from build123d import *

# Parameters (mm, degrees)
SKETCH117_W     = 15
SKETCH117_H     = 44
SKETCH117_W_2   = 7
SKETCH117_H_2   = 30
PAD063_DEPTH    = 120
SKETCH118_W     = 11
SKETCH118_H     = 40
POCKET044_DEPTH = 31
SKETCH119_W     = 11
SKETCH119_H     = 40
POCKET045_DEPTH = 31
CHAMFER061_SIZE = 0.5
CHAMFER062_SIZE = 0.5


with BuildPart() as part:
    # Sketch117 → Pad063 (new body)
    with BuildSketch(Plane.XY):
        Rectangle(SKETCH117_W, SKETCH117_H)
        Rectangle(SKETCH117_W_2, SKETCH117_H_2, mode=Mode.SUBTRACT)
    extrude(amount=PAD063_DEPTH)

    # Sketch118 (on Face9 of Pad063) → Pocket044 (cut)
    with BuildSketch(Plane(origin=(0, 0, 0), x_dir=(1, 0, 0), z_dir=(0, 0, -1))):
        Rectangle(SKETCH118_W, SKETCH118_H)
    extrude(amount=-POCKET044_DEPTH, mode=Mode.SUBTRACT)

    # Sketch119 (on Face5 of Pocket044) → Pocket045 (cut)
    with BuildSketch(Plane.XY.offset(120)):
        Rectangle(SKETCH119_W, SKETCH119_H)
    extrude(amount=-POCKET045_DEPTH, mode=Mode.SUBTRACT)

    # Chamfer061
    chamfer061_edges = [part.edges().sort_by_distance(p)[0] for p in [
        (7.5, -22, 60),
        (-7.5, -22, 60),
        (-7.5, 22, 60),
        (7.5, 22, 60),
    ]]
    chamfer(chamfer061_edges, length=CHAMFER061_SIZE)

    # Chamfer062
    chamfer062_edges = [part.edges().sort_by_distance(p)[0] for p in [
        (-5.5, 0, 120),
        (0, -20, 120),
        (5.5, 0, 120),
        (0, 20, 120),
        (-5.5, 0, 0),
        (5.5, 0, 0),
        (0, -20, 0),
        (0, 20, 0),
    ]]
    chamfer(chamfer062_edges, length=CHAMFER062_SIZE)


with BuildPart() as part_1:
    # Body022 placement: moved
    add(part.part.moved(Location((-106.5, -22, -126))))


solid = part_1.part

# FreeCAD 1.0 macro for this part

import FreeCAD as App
import Part
import Sketcher

V = App.Vector
Q = App.Units.Quantity


def edges_at(feature, points):
    """Names of the edges that pass closest to the given points."""
    edges = feature.Shape.Edges
    near = lambda p: min(range(len(edges)), key=lambda i: edges[i].distToShape(Part.Vertex(*p))[0])
    return sorted({f"Edge{near(p) + 1}" for p in points})


def add_polygon(sketch, points):
    """Adds a closed chain of lines whose ends are joined by coincident constraints."""
    first, n = sketch.GeometryCount, len(points)
    for a, b in zip(points, points[1:] + points[:1]):
        sketch.addGeometry(Part.LineSegment(App.Vector(*a, 0), App.Vector(*b, 0)), False)
    for i in range(n):
        sketch.addConstraint(Sketcher.Constraint("Coincident", first + i, 2, first + (i + 1) % n, 1))

doc = App.newDocument("Part")
body = doc.addObject("PartDesign::Body", "Body")

sketch1 = body.newObject("Sketcher::SketchObject", "Sketch")
sketch1.AttachmentSupport = (doc.getObject("XY_Plane"), [""])
sketch1.MapMode = "FlatFace"
add_polygon(sketch1, [(-8, 22), (-8, -22), (8, -22), (8, 22)])
add_polygon(sketch1, [(4, -15), (-4, -15), (-4, 15), (4, 15)])
sketch1.addConstraint(Sketcher.Constraint("Vertical", 0))
sketch1.addConstraint(Sketcher.Constraint("Horizontal", 1))
sketch1.addConstraint(Sketcher.Constraint("Vertical", 2))
sketch1.addConstraint(Sketcher.Constraint("Horizontal", 3))
sketch1.addConstraint(Sketcher.Constraint("Horizontal", 4))
sketch1.addConstraint(Sketcher.Constraint("Vertical", 5))
sketch1.addConstraint(Sketcher.Constraint("Horizontal", 6))
sketch1.addConstraint(Sketcher.Constraint("Vertical", 7))
sketch1.addConstraint(Sketcher.Constraint("Symmetric", 0, 2, 2, 2, -1, 1))
sketch1.addConstraint(Sketcher.Constraint("Symmetric", 4, 2, 6, 2, -1, 1))
sketch1.addConstraint(Sketcher.Constraint("DistanceX", 1, 1, 1, 2, Q("15 mm")))
sketch1.addConstraint(Sketcher.Constraint("DistanceX", 4, 2, 4, 1, Q("7 mm")))
sketch1.addConstraint(Sketcher.Constraint("DistanceY", 0, 2, 0, 1, Q("44 mm")))
sketch1.addConstraint(Sketcher.Constraint("DistanceY", 5, 1, 5, 2, Q("30 mm")))
pad1 = body.newObject("PartDesign::Pad", "Pad")
pad1.Profile = sketch1
pad1.Length = 120

sketch2 = body.newObject("Sketcher::SketchObject", "Sketch001")
sketch2.AttachmentSupport = (doc.getObject("XY_Plane"), [""])
sketch2.MapMode = "FlatFace"
add_polygon(sketch2, [(-6, -20), (-6, 20), (6, 20), (6, -20)])
sketch2.addConstraint(Sketcher.Constraint("Vertical", 0))
sketch2.addConstraint(Sketcher.Constraint("Horizontal", 1))
sketch2.addConstraint(Sketcher.Constraint("Vertical", 2))
sketch2.addConstraint(Sketcher.Constraint("Horizontal", 3))
sketch2.addConstraint(Sketcher.Constraint("Symmetric", 0, 2, 2, 2, -1, 1))
sketch2.addConstraint(Sketcher.Constraint("DistanceX", 1, 1, 1, 2, Q("11 mm")))
sketch2.addConstraint(Sketcher.Constraint("DistanceY", 0, 1, 0, 2, Q("40 mm")))
pocket1 = body.newObject("PartDesign::Pocket", "Pocket")
pocket1.Profile = sketch2
pocket1.Length = 31
pocket1.Reversed = True

sketch3 = body.newObject("Sketcher::SketchObject", "Sketch002")
sketch3.AttachmentSupport = (doc.getObject("XY_Plane"), [""])
sketch3.MapMode = "FlatFace"
sketch3.AttachmentOffset = App.Placement(V(0, 0, 120), App.Rotation())
add_polygon(sketch3, [(-6, 20), (-6, -20), (6, -20), (6, 20)])
sketch3.addConstraint(Sketcher.Constraint("Vertical", 0))
sketch3.addConstraint(Sketcher.Constraint("Horizontal", 1))
sketch3.addConstraint(Sketcher.Constraint("Vertical", 2))
sketch3.addConstraint(Sketcher.Constraint("Horizontal", 3))
sketch3.addConstraint(Sketcher.Constraint("Symmetric", 0, 2, 2, 2, -1, 1))
sketch3.addConstraint(Sketcher.Constraint("DistanceX", 1, 1, 1, 2, Q("11 mm")))
sketch3.addConstraint(Sketcher.Constraint("DistanceY", 0, 2, 0, 1, Q("40 mm")))
pocket2 = body.newObject("PartDesign::Pocket", "Pocket001")
pocket2.Profile = sketch3
pocket2.Length = 31
doc.recompute()

chamfer = body.newObject("PartDesign::Chamfer", "Chamfer")
chamfer.Base = (pocket2, edges_at(pocket2, [
    (7.5, -22, 60),
    (-7.5, -22, 60),
    (-7.5, 22, 60),
    (7.5, 22, 60),
]))
chamfer.Size = 0.5
doc.recompute()

chamfer2 = body.newObject("PartDesign::Chamfer", "Chamfer001")
chamfer2.Base = (chamfer, edges_at(chamfer, [
    (-5.5, 0, 120),
    (0, -20, 120),
    (5.5, 0, 120),
    (0, 20, 120),
    (-5.5, 0, 0),
    (5.5, 0, 0),
    (0, -20, 0),
    (0, 20, 0),
]))
chamfer2.Size = 0.5
body2 = doc.addObject("PartDesign::Body", "Body001")
doc.recompute()

body.Placement = App.Placement(V(-106.5, -22, -126), App.Rotation(V(0, 0, 1), 0))
boolean = body2.newObject("PartDesign::Boolean", "Boolean")
boolean.Type = "Fuse"
boolean.addObjects([body])

doc.recompute()
